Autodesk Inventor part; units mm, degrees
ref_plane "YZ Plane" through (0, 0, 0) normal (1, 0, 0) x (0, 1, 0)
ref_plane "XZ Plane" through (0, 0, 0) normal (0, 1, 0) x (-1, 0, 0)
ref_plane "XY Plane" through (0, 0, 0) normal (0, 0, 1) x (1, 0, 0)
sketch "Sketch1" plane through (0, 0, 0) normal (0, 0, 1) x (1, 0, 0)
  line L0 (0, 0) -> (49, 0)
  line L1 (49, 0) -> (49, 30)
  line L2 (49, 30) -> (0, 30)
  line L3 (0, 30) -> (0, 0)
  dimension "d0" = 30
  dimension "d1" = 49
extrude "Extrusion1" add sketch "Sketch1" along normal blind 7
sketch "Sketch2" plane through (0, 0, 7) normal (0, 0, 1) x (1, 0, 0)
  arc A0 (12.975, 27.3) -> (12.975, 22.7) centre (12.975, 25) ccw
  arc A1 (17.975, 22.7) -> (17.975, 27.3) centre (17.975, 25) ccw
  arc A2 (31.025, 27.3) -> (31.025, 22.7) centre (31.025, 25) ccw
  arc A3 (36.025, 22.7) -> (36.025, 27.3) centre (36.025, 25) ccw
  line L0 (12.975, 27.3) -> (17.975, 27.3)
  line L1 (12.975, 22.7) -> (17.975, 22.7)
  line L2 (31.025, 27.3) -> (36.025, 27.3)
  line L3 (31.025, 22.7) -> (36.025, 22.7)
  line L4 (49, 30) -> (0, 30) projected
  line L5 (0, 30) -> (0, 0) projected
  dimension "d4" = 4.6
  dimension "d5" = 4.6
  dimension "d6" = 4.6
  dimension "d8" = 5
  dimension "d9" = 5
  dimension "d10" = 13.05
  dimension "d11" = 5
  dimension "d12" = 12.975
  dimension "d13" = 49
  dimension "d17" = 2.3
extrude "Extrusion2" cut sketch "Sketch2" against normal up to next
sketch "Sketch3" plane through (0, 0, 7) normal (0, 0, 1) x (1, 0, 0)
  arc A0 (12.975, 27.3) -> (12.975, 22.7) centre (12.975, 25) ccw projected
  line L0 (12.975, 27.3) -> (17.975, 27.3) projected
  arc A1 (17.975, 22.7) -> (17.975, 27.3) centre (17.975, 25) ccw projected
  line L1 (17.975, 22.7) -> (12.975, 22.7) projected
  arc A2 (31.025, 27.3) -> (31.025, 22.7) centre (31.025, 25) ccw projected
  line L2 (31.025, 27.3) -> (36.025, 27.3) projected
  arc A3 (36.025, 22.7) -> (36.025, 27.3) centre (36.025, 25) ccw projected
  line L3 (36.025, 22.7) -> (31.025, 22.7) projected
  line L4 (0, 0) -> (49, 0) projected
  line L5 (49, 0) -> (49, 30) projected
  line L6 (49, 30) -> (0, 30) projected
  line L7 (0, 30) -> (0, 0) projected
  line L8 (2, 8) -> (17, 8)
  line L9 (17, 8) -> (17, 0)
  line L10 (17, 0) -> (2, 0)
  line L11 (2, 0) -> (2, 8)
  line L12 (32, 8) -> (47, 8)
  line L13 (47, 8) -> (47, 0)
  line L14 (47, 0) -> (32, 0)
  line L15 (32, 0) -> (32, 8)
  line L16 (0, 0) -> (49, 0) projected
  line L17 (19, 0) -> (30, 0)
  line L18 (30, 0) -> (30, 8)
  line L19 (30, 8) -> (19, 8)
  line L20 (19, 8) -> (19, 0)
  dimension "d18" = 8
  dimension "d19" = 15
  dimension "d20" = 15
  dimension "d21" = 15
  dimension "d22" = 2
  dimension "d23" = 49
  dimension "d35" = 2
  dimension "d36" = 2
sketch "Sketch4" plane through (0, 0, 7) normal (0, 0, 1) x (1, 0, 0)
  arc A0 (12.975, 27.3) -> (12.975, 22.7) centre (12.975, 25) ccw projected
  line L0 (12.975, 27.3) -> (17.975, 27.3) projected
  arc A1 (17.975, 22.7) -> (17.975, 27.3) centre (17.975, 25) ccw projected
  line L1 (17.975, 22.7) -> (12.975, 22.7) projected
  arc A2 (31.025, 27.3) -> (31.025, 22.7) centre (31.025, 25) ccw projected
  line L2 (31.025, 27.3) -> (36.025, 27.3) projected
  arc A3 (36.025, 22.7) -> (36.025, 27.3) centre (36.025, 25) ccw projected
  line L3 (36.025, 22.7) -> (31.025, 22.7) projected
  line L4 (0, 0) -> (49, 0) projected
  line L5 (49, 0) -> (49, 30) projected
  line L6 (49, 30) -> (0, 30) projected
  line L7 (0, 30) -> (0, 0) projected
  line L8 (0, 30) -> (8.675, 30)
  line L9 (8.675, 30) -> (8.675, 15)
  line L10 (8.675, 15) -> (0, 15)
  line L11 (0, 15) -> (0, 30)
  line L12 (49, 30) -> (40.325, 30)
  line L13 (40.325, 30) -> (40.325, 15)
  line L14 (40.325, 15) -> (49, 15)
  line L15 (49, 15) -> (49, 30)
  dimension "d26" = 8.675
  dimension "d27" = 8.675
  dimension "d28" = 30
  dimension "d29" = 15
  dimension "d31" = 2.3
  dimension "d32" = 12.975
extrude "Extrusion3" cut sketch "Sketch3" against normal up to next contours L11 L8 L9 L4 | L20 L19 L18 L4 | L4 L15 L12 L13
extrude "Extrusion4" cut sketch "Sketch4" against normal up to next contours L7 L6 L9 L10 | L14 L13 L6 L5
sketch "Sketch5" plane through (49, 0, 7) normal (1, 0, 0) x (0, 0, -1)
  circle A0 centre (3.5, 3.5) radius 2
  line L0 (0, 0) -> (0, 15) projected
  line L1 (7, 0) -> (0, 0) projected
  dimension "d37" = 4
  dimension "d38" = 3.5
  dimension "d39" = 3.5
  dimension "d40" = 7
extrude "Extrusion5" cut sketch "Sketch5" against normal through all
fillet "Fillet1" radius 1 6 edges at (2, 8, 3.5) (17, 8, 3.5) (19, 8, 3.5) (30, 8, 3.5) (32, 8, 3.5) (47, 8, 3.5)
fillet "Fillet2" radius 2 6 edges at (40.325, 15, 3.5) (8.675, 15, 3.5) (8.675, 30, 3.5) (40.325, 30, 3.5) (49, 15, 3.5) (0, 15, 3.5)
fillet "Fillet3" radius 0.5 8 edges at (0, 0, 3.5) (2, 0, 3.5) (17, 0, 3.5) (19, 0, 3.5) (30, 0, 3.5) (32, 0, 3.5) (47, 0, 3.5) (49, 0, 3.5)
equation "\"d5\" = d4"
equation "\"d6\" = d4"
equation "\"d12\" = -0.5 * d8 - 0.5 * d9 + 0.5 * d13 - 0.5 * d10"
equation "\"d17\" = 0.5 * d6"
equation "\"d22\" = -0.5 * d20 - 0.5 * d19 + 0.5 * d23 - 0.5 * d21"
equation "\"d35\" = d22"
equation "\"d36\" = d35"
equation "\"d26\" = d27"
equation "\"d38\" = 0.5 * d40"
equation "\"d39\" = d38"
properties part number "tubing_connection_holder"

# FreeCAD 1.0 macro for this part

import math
import FreeCAD as App
import Part
import Sketcher
Q = App.Units.Quantity


def edges_at(feature, points):
    """Names of the edges that pass closest to the given points."""
    edges = feature.Shape.Edges
    near = lambda p: min(range(len(edges)), key=lambda i: edges[i].distToShape(Part.Vertex(*p))[0])
    return sorted({f"Edge{near(p) + 1}" for p in points})

doc = App.newDocument("Part")
body = doc.addObject("PartDesign::Body", "Body")

sketch1 = doc.addObject("Sketcher::SketchObject", "Sketch")
body.addObject(sketch1)
sketch1.AttachmentSupport = (doc.XY_Plane, [""])
sketch1.MapMode = "FlatFace"
sketch1.addGeometry([
    Part.LineSegment(App.Vector(0, 30, 0), App.Vector(0, 0, 0)),
    Part.LineSegment(App.Vector(0, 0, 0), App.Vector(49, 0, 0)),
    Part.LineSegment(App.Vector(49, 0, 0), App.Vector(49, 30, 0)),
    Part.LineSegment(App.Vector(49, 30, 0), App.Vector(0, 30, 0)),
], False)
sketch1.addConstraint([
    Sketcher.Constraint("Coincident", 0, 2, 1, 1),
    Sketcher.Constraint("Coincident", 1, 2, 2, 1),
    Sketcher.Constraint("Coincident", 2, 2, 3, 1),
    Sketcher.Constraint("Coincident", 3, 2, 0, 1),
    Sketcher.Constraint("Vertical", 0),
    Sketcher.Constraint("Horizontal", 1),
    Sketcher.Constraint("Vertical", 2),
    Sketcher.Constraint("Horizontal", 3),
    Sketcher.Constraint("Coincident", 0, 2, -1, 1),
    Sketcher.Constraint("DistanceX", 1, 1, 1, 2, Q("49 mm")),
    Sketcher.Constraint("DistanceY", 0, 2, 0, 1, Q("30 mm")),
])
pad1 = doc.addObject("PartDesign::Pad", "Pad")
body.addObject(pad1)
pad1.Profile = sketch1
pad1.Length = 7

sketch2 = doc.addObject("Sketcher::SketchObject", "Sketch001")
body.addObject(sketch2)
sketch2.AttachmentSupport = (doc.XY_Plane, [""])
sketch2.MapMode = "FlatFace"
sketch2.AttachmentOffset = App.Placement(App.Vector(0, 0, 7), App.Rotation())
sketch2.addGeometry([
    Part.LineSegment(App.Vector(18, 27.3, 0), App.Vector(13, 27.3, 0)),
    Part.ArcOfCircle(Part.Circle(App.Vector(13, 25, 0), App.Vector(0, 0, 1), 2.3), math.radians(90), math.radians(270)),
    Part.LineSegment(App.Vector(13, 22.7, 0), App.Vector(18, 22.7, 0)),
    Part.ArcOfCircle(Part.Circle(App.Vector(18, 25, 0), App.Vector(0, 0, 1), 2.3), math.radians(-90), math.radians(90)),
    Part.LineSegment(App.Vector(36, 27.3, 0), App.Vector(31, 27.3, 0)),
    Part.ArcOfCircle(Part.Circle(App.Vector(31, 25, 0), App.Vector(0, 0, 1), 2.3), math.radians(90), math.radians(270)),
    Part.LineSegment(App.Vector(31, 22.7, 0), App.Vector(36, 22.7, 0)),
    Part.ArcOfCircle(Part.Circle(App.Vector(36, 25, 0), App.Vector(0, 0, 1), 2.3), math.radians(-90), math.radians(90)),
], False)
sketch2.addConstraint([
    Sketcher.Constraint("Tangent", 0, 2, 1, 1),
    Sketcher.Constraint("Tangent", 1, 2, 2, 1),
    Sketcher.Constraint("Tangent", 2, 2, 3, 1),
    Sketcher.Constraint("Tangent", 3, 2, 0, 1),
    Sketcher.Constraint("Tangent", 4, 2, 5, 1),
    Sketcher.Constraint("Tangent", 5, 2, 6, 1),
    Sketcher.Constraint("Tangent", 6, 2, 7, 1),
    Sketcher.Constraint("Tangent", 7, 2, 4, 1),
    Sketcher.Constraint("Horizontal", 0),
    Sketcher.Constraint("Horizontal", 2),
    Sketcher.Constraint("Horizontal", 4),
    Sketcher.Constraint("Horizontal", 6),
    Sketcher.Constraint("Equal", 3, 5),
    Sketcher.Constraint("Horizontal", 3, 3, 5, 3),
    Sketcher.Constraint("Equal", 2, 4),
    Sketcher.Constraint("Radius", 1, Q("2.3 mm")),
    Sketcher.Constraint("DistanceX", 0, 2, 0, 1, Q("5 mm")),
    Sketcher.Constraint("DistanceX", 3, 3, 5, 3, Q("13.05 mm")),
    Sketcher.Constraint("DistanceX", -1, 1, 1, 3, Q("12.975 mm")),
    Sketcher.Constraint("DistanceY", -1, 1, 1, 3, Q("25 mm")),
])
pocket1 = doc.addObject("PartDesign::Pocket", "Pocket")
body.addObject(pocket1)
pocket1.Profile = sketch2
pocket1.Type = "UpToFirst"

sketch3 = doc.addObject("Sketcher::SketchObject", "Sketch002")
body.addObject(sketch3)
sketch3.AttachmentSupport = (doc.XY_Plane, [""])
sketch3.MapMode = "FlatFace"
sketch3.AttachmentOffset = App.Placement(App.Vector(0, 0, 7), App.Rotation())
sketch3.addGeometry([
    Part.LineSegment(App.Vector(2, 8, 0), App.Vector(2, 0, 0)),
    Part.LineSegment(App.Vector(2, 0, 0), App.Vector(17, 0, 0)),
    Part.LineSegment(App.Vector(17, 0, 0), App.Vector(17, 8, 0)),
    Part.LineSegment(App.Vector(17, 8, 0), App.Vector(2, 8, 0)),
    Part.LineSegment(App.Vector(19, 8, 0), App.Vector(19, 0, 0)),
    Part.LineSegment(App.Vector(19, 0, 0), App.Vector(30, 0, 0)),
    Part.LineSegment(App.Vector(30, 0, 0), App.Vector(30, 8, 0)),
    Part.LineSegment(App.Vector(30, 8, 0), App.Vector(19, 8, 0)),
    Part.LineSegment(App.Vector(32, 0, 0), App.Vector(47, 0, 0)),
    Part.LineSegment(App.Vector(47, 0, 0), App.Vector(47, 8, 0)),
    Part.LineSegment(App.Vector(47, 8, 0), App.Vector(32, 8, 0)),
    Part.LineSegment(App.Vector(32, 8, 0), App.Vector(32, 0, 0)),
], False)
sketch3.addConstraint([
    Sketcher.Constraint("Coincident", 0, 2, 1, 1),
    Sketcher.Constraint("Coincident", 1, 2, 2, 1),
    Sketcher.Constraint("Coincident", 2, 2, 3, 1),
    Sketcher.Constraint("Coincident", 3, 2, 0, 1),
    Sketcher.Constraint("Coincident", 4, 2, 5, 1),
    Sketcher.Constraint("Coincident", 5, 2, 6, 1),
    Sketcher.Constraint("Coincident", 6, 2, 7, 1),
    Sketcher.Constraint("Coincident", 7, 2, 4, 1),
    Sketcher.Constraint("Coincident", 8, 2, 9, 1),
    Sketcher.Constraint("Coincident", 9, 2, 10, 1),
    Sketcher.Constraint("Coincident", 10, 2, 11, 1),
    Sketcher.Constraint("Coincident", 11, 2, 8, 1),
    Sketcher.Constraint("Vertical", 0),
    Sketcher.Constraint("Horizontal", 1),
    Sketcher.Constraint("Vertical", 2),
    Sketcher.Constraint("Horizontal", 3),
    Sketcher.Constraint("Vertical", 4),
    Sketcher.Constraint("Horizontal", 5),
    Sketcher.Constraint("Vertical", 6),
    Sketcher.Constraint("Horizontal", 7),
    Sketcher.Constraint("Horizontal", 8),
    Sketcher.Constraint("Vertical", 9),
    Sketcher.Constraint("Horizontal", 10),
    Sketcher.Constraint("Vertical", 11),
    Sketcher.Constraint("PointOnObject", 0, 2, -1),
    Sketcher.Constraint("PointOnObject", 4, 2, -1),
    Sketcher.Constraint("PointOnObject", 8, 2, -1),
    Sketcher.Constraint("Horizontal", 3, 2, 6, 2),
    Sketcher.Constraint("Horizontal", 7, 2, 9, 2),
    Sketcher.Constraint("Equal", 3, 8),
    Sketcher.Constraint("DistanceX", 1, 1, 1, 2, Q("15 mm")),
    Sketcher.Constraint("DistanceY", 0, 2, 0, 1, Q("8 mm")),
    Sketcher.Constraint("DistanceX", -1, 1, 0, 2, Q("2 mm")),
    Sketcher.Constraint("DistanceX", 1, 2, 4, 2, Q("2 mm")),
    Sketcher.Constraint("DistanceX", 6, 2, 10, 2, Q("2 mm")),
    Sketcher.Constraint("DistanceX", 2, 2, 10, 2, Q("15 mm")),
])
pocket2 = doc.addObject("PartDesign::Pocket", "Pocket001")
body.addObject(pocket2)
pocket2.Profile = sketch3
pocket2.Type = "UpToFirst"

sketch4 = doc.addObject("Sketcher::SketchObject", "Sketch003")
body.addObject(sketch4)
sketch4.AttachmentSupport = (doc.XY_Plane, [""])
sketch4.MapMode = "FlatFace"
sketch4.AttachmentOffset = App.Placement(App.Vector(0, 0, 7), App.Rotation())
sketch4.addGeometry([
    Part.LineSegment(App.Vector(0, 30, 0), App.Vector(0, 15, 0)),
    Part.LineSegment(App.Vector(0, 15, 0), App.Vector(9, 15, 0)),
    Part.LineSegment(App.Vector(9, 15, 0), App.Vector(9, 30, 0)),
    Part.LineSegment(App.Vector(9, 30, 0), App.Vector(0, 30, 0)),
    Part.LineSegment(App.Vector(40, 15, 0), App.Vector(49, 15, 0)),
    Part.LineSegment(App.Vector(49, 15, 0), App.Vector(49, 30, 0)),
    Part.LineSegment(App.Vector(49, 30, 0), App.Vector(40, 30, 0)),
    Part.LineSegment(App.Vector(40, 30, 0), App.Vector(40, 15, 0)),
], False)
sketch4.addConstraint([
    Sketcher.Constraint("Coincident", 0, 2, 1, 1),
    Sketcher.Constraint("Coincident", 1, 2, 2, 1),
    Sketcher.Constraint("Coincident", 2, 2, 3, 1),
    Sketcher.Constraint("Coincident", 3, 2, 0, 1),
    Sketcher.Constraint("Coincident", 4, 2, 5, 1),
    Sketcher.Constraint("Coincident", 5, 2, 6, 1),
    Sketcher.Constraint("Coincident", 6, 2, 7, 1),
    Sketcher.Constraint("Coincident", 7, 2, 4, 1),
    Sketcher.Constraint("Vertical", 0),
    Sketcher.Constraint("Horizontal", 1),
    Sketcher.Constraint("Vertical", 2),
    Sketcher.Constraint("Horizontal", 3),
    Sketcher.Constraint("Horizontal", 4),
    Sketcher.Constraint("Vertical", 5),
    Sketcher.Constraint("Horizontal", 6),
    Sketcher.Constraint("Vertical", 7),
    Sketcher.Constraint("PointOnObject", 0, 2, -2),
    Sketcher.Constraint("Horizontal", 1, 2, 4, 2),
    Sketcher.Constraint("Horizontal", 3, 2, 5, 2),
    Sketcher.Constraint("Equal", 3, 4),
    Sketcher.Constraint("DistanceY", 0, 2, 0, 1, Q("15 mm")),
    Sketcher.Constraint("DistanceY", -1, 1, 0, 2, Q("15 mm")),
    Sketcher.Constraint("DistanceX", 1, 1, 1, 2, Q("8.675 mm")),
    Sketcher.Constraint("DistanceX", -1, 1, 4, 2, Q("49 mm")),
])
pocket3 = doc.addObject("PartDesign::Pocket", "Pocket002")
body.addObject(pocket3)
pocket3.Profile = sketch4
pocket3.Type = "UpToFirst"

sketch5 = doc.addObject("Sketcher::SketchObject", "Sketch004")
body.addObject(sketch5)
sketch5.AttachmentSupport = (doc.YZ_Plane, [""])
sketch5.MapMode = "FlatFace"
sketch5.AttachmentOffset = App.Placement(App.Vector(0, 0, 49), App.Rotation())
sketch5.addGeometry(Part.Circle(App.Vector(3.5, 3.5, 0), App.Vector(0, 0, 1), 2), False)
sketch5.addConstraint([
    Sketcher.Constraint("Diameter", 0, Q("4 mm")),
    Sketcher.Constraint("DistanceX", -1, 1, 0, 3, Q("3.5 mm")),
    Sketcher.Constraint("DistanceY", -1, 1, 0, 3, Q("3.5 mm")),
])
pocket4 = doc.addObject("PartDesign::Pocket", "Pocket003")
body.addObject(pocket4)
pocket4.Profile = sketch5
pocket4.Type = "ThroughAll"
doc.recompute()

fillet = doc.addObject("PartDesign::Fillet", "Fillet")
body.addObject(fillet)
fillet.Base = (pocket4, edges_at(pocket4, [
    (2, 8, 3.5),
    (17, 8, 3.5),
    (19, 8, 3.5),
    (30, 8, 3.5),
    (32, 8, 3.5),
    (47, 8, 3.5),
]))
fillet.Radius = 1
doc.recompute()

fillet2 = doc.addObject("PartDesign::Fillet", "Fillet001")
body.addObject(fillet2)
fillet2.Base = (fillet, edges_at(fillet, [
    (40.325, 15, 3.5),
    (8.675, 15, 3.5),
    (8.675, 30, 3.5),
    (40.325, 30, 3.5),
    (49, 15, 3.5),
    (0, 15, 3.5),
]))
fillet2.Radius = 2
doc.recompute()

fillet3 = doc.addObject("PartDesign::Fillet", "Fillet002")
body.addObject(fillet3)
fillet3.Base = (fillet2, edges_at(fillet2, [
    (0, 0, 3.5),
    (2, 0, 3.5),
    (17, 0, 3.5),
    (19, 0, 3.5),
    (30, 0, 3.5),
    (32, 0, 3.5),
    (47, 0, 3.5),
    (49, 0, 3.5),
]))
fillet3.Radius = 0.5

doc.recompute()
